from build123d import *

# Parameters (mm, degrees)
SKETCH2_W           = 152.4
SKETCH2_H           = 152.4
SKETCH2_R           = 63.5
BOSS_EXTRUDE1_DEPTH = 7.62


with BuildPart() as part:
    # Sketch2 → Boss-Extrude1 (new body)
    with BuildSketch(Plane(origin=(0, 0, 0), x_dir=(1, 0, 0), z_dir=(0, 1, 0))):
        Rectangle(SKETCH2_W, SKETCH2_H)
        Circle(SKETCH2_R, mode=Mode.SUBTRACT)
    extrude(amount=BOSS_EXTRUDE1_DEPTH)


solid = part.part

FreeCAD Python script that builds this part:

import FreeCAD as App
import Part
import Sketcher
Q = App.Units.Quantity


def add_polygon(sketch, points):
    """Adds a closed chain of lines whose ends are joined by coincident constraints."""
    first, n = sketch.GeometryCount, len(points)
    for a, b in zip(points, points[1:] + points[:1]):
        sketch.addGeometry(Part.LineSegment(App.Vector(*a, 0), App.Vector(*b, 0)), False)
    for i in range(n):
        sketch.addConstraint(Sketcher.Constraint("Coincident", first + i, 2, first + (i + 1) % n, 1))

doc = App.newDocument("Part")
params = doc.addObject("Spreadsheet::Sheet", "Params")
for row, (alias, value) in enumerate([
    ("sketch1_diameter", "5 in"),
    ("sketch1_width", "6 in"),
    ("pad1_length", "0.3 in"),
], start=1):
    params.set(f"A{row}", alias)
    params.set(f"B{row}", "=" + value)
    params.setAlias(f"B{row}", alias)

body = doc.addObject("PartDesign::Body", "Body")

sketch1 = doc.addObject("Sketcher::SketchObject", "Sketch")
body.addObject(sketch1)
sketch1.AttachmentSupport = (doc.XZ_Plane, [""])
sketch1.MapMode = "FlatFace"
add_polygon(sketch1, [(-76.2, -76.2), (-76.2, 76.2), (76.2, 76.2), (76.2, -76.2)])
sketch1.addGeometry(Part.Circle(App.Vector(0, 0, 0), App.Vector(0, 0, 1), 63.5), False)
sketch1.addConstraint([
    Sketcher.Constraint("Vertical", 0),
    Sketcher.Constraint("Horizontal", 1),
    Sketcher.Constraint("Vertical", 2),
    Sketcher.Constraint("Horizontal", 3),
    Sketcher.Constraint("Coincident", 4, 3, -1, 1),
    Sketcher.Constraint("Symmetric", 0, 2, 2, 2, -1, 1),
    Sketcher.Constraint("Equal", 3, 0),
    Sketcher.Constraint("Diameter", 4, Q("5 in")),
    Sketcher.Constraint("DistanceX", 1, 1, 1, 2, Q("6 in")),
])
sketch1.setExpression("Constraints[11]", "Params.sketch1_diameter")
sketch1.setExpression("Constraints[12]", "Params.sketch1_width")
pad1 = doc.addObject("PartDesign::Pad", "Pad")
body.addObject(pad1)
pad1.Profile = sketch1
pad1.setExpression("Length", "Params.pad1_length")
pad1.Reversed = True

doc.recompute()
